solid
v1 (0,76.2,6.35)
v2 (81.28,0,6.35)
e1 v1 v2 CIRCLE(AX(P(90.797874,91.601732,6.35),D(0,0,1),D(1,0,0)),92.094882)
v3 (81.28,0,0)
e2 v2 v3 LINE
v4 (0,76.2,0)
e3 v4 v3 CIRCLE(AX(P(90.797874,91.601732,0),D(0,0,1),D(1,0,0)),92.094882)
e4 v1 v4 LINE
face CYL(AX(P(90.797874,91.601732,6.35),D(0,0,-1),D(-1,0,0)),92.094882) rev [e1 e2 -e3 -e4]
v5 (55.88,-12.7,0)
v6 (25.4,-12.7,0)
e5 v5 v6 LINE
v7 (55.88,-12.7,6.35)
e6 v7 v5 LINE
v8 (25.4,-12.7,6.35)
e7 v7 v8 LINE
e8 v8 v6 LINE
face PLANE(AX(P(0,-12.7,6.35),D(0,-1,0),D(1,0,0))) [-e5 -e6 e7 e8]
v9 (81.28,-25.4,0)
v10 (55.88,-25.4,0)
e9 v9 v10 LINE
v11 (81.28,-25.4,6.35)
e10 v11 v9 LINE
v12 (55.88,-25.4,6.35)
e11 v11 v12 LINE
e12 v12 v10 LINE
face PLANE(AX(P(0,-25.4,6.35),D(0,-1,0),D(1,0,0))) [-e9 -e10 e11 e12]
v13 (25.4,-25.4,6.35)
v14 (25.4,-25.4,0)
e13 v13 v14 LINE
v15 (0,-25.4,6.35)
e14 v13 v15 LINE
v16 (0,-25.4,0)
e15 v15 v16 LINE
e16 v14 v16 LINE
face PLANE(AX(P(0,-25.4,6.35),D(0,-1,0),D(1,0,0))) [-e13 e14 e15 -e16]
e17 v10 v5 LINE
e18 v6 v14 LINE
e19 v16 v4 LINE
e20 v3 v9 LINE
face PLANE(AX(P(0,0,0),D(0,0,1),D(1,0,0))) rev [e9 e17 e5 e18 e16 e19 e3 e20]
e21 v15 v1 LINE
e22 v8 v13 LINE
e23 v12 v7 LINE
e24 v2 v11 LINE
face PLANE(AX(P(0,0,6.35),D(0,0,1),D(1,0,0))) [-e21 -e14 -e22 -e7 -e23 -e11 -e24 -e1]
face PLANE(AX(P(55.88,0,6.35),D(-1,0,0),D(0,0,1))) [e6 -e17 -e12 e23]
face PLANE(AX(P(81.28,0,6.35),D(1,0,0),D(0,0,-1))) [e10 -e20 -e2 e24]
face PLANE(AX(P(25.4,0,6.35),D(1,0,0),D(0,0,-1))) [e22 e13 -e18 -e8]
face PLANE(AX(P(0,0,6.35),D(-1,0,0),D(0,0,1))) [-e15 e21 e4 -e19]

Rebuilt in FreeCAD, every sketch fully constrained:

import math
import FreeCAD as App
import Part
import Sketcher
from FreeCAD import Vector
Q = App.Units.Quantity

doc = App.newDocument("Part")
params = doc.addObject("Spreadsheet::Sheet", "Params")
for row, (alias, value) in enumerate([
    ("sketch1_width", "1 in"),
    ("sketch1_height", "4 in"),
    ("sketch1_width2", "1.2 in"),
    ("sketch1_height2", "0.5 in"),
    ("pad1_length", "0.25 in"),
], start=1):
    params.set(f"A{row}", alias)
    params.set(f"B{row}", "=" + value)
    params.setAlias(f"B{row}", alias)

body = doc.addObject("PartDesign::Body", "Body")

# Sketch on XY plane
sketch1 = doc.addObject("Sketcher::SketchObject", "Sketch")
body.addObject(sketch1)
sketch1.AttachmentSupport = (doc.XY_Plane, [""])
sketch1.MapMode = "FlatFace"
sketch1.addGeometry(Part.ArcOfCircle(Part.Circle(Vector(90.797874, 91.601732, 0), Vector(0, 0, 1), 92.094882), math.radians(-170.372751), math.radians(-95.932029)), False)
sketch1.addGeometry(Part.LineSegment(Vector(0, 76.2, 0), Vector(0, -25.4, 0)), False)
sketch1.addGeometry(Part.LineSegment(Vector(0, -25.4, 0), Vector(25.4, -25.4, 0)), False)
sketch1.addGeometry(Part.LineSegment(Vector(25.4, -25.4, 0), Vector(25.4, -12.7, 0)), False)
sketch1.addGeometry(Part.LineSegment(Vector(25.4, -12.7, 0), Vector(55.88, -12.7, 0)), False)
sketch1.addGeometry(Part.LineSegment(Vector(55.88, -12.7, 0), Vector(55.88, -25.4, 0)), False)
sketch1.addGeometry(Part.LineSegment(Vector(55.88, -25.4, 0), Vector(81.28, -25.4, 0)), False)
sketch1.addGeometry(Part.LineSegment(Vector(81.28, -25.4, 0), Vector(81.28, 0, 0)), False)
sketch1.addConstraint(Sketcher.Constraint("Coincident", 0, 1, 1, 1))
sketch1.addConstraint(Sketcher.Constraint("Coincident", 1, 2, 2, 1))
sketch1.addConstraint(Sketcher.Constraint("Coincident", 2, 2, 3, 1))
sketch1.addConstraint(Sketcher.Constraint("Coincident", 3, 2, 4, 1))
sketch1.addConstraint(Sketcher.Constraint("Coincident", 4, 2, 5, 1))
sketch1.addConstraint(Sketcher.Constraint("Coincident", 5, 2, 6, 1))
sketch1.addConstraint(Sketcher.Constraint("Coincident", 6, 2, 7, 1))
sketch1.addConstraint(Sketcher.Constraint("Coincident", 7, 2, 0, 2))
sketch1.addConstraint(Sketcher.Constraint("Vertical", 1))
sketch1.addConstraint(Sketcher.Constraint("Horizontal", 2))
sketch1.addConstraint(Sketcher.Constraint("Vertical", 3))
sketch1.addConstraint(Sketcher.Constraint("Horizontal", 4))
sketch1.addConstraint(Sketcher.Constraint("Vertical", 5))
sketch1.addConstraint(Sketcher.Constraint("Horizontal", 6))
sketch1.addConstraint(Sketcher.Constraint("Vertical", 7))
sketch1.addConstraint(Sketcher.Constraint("PointOnObject", 0, 1, -2))
sketch1.addConstraint(Sketcher.Constraint("PointOnObject", 7, 2, -1))
sketch1.addConstraint(Sketcher.Constraint("Horizontal", 2, 2, 5, 2))
sketch1.addConstraint(Sketcher.Constraint("Equal", 2, 6))
sketch1.addConstraint(Sketcher.Constraint("Equal", 6, 7))
sketch1.addConstraint(Sketcher.Constraint("DistanceX", 2, 1, 2, 2, Q("1 in")))
sketch1.addConstraint(Sketcher.Constraint("DistanceY", 1, 2, 1, 1, Q("4 in")))
sketch1.addConstraint(Sketcher.Constraint("DistanceX", 4, 1, 4, 2, Q("1.2 in")))
sketch1.addConstraint(Sketcher.Constraint("DistanceY", 3, 1, 3, 2, Q("0.5 in")))
sketch1.addConstraint(Sketcher.Constraint("Radius", 0, 92.094882))
sketch1.setExpression("Constraints[20]", "Params.sketch1_width")
sketch1.setExpression("Constraints[21]", "Params.sketch1_height")
sketch1.setExpression("Constraints[22]", "Params.sketch1_width2")
sketch1.setExpression("Constraints[23]", "Params.sketch1_height2")
pad1 = doc.addObject("PartDesign::Pad", "Pad")
body.addObject(pad1)
pad1.Profile = sketch1
pad1.setExpression("Length", "Params.pad1_length")

doc.recompute()
